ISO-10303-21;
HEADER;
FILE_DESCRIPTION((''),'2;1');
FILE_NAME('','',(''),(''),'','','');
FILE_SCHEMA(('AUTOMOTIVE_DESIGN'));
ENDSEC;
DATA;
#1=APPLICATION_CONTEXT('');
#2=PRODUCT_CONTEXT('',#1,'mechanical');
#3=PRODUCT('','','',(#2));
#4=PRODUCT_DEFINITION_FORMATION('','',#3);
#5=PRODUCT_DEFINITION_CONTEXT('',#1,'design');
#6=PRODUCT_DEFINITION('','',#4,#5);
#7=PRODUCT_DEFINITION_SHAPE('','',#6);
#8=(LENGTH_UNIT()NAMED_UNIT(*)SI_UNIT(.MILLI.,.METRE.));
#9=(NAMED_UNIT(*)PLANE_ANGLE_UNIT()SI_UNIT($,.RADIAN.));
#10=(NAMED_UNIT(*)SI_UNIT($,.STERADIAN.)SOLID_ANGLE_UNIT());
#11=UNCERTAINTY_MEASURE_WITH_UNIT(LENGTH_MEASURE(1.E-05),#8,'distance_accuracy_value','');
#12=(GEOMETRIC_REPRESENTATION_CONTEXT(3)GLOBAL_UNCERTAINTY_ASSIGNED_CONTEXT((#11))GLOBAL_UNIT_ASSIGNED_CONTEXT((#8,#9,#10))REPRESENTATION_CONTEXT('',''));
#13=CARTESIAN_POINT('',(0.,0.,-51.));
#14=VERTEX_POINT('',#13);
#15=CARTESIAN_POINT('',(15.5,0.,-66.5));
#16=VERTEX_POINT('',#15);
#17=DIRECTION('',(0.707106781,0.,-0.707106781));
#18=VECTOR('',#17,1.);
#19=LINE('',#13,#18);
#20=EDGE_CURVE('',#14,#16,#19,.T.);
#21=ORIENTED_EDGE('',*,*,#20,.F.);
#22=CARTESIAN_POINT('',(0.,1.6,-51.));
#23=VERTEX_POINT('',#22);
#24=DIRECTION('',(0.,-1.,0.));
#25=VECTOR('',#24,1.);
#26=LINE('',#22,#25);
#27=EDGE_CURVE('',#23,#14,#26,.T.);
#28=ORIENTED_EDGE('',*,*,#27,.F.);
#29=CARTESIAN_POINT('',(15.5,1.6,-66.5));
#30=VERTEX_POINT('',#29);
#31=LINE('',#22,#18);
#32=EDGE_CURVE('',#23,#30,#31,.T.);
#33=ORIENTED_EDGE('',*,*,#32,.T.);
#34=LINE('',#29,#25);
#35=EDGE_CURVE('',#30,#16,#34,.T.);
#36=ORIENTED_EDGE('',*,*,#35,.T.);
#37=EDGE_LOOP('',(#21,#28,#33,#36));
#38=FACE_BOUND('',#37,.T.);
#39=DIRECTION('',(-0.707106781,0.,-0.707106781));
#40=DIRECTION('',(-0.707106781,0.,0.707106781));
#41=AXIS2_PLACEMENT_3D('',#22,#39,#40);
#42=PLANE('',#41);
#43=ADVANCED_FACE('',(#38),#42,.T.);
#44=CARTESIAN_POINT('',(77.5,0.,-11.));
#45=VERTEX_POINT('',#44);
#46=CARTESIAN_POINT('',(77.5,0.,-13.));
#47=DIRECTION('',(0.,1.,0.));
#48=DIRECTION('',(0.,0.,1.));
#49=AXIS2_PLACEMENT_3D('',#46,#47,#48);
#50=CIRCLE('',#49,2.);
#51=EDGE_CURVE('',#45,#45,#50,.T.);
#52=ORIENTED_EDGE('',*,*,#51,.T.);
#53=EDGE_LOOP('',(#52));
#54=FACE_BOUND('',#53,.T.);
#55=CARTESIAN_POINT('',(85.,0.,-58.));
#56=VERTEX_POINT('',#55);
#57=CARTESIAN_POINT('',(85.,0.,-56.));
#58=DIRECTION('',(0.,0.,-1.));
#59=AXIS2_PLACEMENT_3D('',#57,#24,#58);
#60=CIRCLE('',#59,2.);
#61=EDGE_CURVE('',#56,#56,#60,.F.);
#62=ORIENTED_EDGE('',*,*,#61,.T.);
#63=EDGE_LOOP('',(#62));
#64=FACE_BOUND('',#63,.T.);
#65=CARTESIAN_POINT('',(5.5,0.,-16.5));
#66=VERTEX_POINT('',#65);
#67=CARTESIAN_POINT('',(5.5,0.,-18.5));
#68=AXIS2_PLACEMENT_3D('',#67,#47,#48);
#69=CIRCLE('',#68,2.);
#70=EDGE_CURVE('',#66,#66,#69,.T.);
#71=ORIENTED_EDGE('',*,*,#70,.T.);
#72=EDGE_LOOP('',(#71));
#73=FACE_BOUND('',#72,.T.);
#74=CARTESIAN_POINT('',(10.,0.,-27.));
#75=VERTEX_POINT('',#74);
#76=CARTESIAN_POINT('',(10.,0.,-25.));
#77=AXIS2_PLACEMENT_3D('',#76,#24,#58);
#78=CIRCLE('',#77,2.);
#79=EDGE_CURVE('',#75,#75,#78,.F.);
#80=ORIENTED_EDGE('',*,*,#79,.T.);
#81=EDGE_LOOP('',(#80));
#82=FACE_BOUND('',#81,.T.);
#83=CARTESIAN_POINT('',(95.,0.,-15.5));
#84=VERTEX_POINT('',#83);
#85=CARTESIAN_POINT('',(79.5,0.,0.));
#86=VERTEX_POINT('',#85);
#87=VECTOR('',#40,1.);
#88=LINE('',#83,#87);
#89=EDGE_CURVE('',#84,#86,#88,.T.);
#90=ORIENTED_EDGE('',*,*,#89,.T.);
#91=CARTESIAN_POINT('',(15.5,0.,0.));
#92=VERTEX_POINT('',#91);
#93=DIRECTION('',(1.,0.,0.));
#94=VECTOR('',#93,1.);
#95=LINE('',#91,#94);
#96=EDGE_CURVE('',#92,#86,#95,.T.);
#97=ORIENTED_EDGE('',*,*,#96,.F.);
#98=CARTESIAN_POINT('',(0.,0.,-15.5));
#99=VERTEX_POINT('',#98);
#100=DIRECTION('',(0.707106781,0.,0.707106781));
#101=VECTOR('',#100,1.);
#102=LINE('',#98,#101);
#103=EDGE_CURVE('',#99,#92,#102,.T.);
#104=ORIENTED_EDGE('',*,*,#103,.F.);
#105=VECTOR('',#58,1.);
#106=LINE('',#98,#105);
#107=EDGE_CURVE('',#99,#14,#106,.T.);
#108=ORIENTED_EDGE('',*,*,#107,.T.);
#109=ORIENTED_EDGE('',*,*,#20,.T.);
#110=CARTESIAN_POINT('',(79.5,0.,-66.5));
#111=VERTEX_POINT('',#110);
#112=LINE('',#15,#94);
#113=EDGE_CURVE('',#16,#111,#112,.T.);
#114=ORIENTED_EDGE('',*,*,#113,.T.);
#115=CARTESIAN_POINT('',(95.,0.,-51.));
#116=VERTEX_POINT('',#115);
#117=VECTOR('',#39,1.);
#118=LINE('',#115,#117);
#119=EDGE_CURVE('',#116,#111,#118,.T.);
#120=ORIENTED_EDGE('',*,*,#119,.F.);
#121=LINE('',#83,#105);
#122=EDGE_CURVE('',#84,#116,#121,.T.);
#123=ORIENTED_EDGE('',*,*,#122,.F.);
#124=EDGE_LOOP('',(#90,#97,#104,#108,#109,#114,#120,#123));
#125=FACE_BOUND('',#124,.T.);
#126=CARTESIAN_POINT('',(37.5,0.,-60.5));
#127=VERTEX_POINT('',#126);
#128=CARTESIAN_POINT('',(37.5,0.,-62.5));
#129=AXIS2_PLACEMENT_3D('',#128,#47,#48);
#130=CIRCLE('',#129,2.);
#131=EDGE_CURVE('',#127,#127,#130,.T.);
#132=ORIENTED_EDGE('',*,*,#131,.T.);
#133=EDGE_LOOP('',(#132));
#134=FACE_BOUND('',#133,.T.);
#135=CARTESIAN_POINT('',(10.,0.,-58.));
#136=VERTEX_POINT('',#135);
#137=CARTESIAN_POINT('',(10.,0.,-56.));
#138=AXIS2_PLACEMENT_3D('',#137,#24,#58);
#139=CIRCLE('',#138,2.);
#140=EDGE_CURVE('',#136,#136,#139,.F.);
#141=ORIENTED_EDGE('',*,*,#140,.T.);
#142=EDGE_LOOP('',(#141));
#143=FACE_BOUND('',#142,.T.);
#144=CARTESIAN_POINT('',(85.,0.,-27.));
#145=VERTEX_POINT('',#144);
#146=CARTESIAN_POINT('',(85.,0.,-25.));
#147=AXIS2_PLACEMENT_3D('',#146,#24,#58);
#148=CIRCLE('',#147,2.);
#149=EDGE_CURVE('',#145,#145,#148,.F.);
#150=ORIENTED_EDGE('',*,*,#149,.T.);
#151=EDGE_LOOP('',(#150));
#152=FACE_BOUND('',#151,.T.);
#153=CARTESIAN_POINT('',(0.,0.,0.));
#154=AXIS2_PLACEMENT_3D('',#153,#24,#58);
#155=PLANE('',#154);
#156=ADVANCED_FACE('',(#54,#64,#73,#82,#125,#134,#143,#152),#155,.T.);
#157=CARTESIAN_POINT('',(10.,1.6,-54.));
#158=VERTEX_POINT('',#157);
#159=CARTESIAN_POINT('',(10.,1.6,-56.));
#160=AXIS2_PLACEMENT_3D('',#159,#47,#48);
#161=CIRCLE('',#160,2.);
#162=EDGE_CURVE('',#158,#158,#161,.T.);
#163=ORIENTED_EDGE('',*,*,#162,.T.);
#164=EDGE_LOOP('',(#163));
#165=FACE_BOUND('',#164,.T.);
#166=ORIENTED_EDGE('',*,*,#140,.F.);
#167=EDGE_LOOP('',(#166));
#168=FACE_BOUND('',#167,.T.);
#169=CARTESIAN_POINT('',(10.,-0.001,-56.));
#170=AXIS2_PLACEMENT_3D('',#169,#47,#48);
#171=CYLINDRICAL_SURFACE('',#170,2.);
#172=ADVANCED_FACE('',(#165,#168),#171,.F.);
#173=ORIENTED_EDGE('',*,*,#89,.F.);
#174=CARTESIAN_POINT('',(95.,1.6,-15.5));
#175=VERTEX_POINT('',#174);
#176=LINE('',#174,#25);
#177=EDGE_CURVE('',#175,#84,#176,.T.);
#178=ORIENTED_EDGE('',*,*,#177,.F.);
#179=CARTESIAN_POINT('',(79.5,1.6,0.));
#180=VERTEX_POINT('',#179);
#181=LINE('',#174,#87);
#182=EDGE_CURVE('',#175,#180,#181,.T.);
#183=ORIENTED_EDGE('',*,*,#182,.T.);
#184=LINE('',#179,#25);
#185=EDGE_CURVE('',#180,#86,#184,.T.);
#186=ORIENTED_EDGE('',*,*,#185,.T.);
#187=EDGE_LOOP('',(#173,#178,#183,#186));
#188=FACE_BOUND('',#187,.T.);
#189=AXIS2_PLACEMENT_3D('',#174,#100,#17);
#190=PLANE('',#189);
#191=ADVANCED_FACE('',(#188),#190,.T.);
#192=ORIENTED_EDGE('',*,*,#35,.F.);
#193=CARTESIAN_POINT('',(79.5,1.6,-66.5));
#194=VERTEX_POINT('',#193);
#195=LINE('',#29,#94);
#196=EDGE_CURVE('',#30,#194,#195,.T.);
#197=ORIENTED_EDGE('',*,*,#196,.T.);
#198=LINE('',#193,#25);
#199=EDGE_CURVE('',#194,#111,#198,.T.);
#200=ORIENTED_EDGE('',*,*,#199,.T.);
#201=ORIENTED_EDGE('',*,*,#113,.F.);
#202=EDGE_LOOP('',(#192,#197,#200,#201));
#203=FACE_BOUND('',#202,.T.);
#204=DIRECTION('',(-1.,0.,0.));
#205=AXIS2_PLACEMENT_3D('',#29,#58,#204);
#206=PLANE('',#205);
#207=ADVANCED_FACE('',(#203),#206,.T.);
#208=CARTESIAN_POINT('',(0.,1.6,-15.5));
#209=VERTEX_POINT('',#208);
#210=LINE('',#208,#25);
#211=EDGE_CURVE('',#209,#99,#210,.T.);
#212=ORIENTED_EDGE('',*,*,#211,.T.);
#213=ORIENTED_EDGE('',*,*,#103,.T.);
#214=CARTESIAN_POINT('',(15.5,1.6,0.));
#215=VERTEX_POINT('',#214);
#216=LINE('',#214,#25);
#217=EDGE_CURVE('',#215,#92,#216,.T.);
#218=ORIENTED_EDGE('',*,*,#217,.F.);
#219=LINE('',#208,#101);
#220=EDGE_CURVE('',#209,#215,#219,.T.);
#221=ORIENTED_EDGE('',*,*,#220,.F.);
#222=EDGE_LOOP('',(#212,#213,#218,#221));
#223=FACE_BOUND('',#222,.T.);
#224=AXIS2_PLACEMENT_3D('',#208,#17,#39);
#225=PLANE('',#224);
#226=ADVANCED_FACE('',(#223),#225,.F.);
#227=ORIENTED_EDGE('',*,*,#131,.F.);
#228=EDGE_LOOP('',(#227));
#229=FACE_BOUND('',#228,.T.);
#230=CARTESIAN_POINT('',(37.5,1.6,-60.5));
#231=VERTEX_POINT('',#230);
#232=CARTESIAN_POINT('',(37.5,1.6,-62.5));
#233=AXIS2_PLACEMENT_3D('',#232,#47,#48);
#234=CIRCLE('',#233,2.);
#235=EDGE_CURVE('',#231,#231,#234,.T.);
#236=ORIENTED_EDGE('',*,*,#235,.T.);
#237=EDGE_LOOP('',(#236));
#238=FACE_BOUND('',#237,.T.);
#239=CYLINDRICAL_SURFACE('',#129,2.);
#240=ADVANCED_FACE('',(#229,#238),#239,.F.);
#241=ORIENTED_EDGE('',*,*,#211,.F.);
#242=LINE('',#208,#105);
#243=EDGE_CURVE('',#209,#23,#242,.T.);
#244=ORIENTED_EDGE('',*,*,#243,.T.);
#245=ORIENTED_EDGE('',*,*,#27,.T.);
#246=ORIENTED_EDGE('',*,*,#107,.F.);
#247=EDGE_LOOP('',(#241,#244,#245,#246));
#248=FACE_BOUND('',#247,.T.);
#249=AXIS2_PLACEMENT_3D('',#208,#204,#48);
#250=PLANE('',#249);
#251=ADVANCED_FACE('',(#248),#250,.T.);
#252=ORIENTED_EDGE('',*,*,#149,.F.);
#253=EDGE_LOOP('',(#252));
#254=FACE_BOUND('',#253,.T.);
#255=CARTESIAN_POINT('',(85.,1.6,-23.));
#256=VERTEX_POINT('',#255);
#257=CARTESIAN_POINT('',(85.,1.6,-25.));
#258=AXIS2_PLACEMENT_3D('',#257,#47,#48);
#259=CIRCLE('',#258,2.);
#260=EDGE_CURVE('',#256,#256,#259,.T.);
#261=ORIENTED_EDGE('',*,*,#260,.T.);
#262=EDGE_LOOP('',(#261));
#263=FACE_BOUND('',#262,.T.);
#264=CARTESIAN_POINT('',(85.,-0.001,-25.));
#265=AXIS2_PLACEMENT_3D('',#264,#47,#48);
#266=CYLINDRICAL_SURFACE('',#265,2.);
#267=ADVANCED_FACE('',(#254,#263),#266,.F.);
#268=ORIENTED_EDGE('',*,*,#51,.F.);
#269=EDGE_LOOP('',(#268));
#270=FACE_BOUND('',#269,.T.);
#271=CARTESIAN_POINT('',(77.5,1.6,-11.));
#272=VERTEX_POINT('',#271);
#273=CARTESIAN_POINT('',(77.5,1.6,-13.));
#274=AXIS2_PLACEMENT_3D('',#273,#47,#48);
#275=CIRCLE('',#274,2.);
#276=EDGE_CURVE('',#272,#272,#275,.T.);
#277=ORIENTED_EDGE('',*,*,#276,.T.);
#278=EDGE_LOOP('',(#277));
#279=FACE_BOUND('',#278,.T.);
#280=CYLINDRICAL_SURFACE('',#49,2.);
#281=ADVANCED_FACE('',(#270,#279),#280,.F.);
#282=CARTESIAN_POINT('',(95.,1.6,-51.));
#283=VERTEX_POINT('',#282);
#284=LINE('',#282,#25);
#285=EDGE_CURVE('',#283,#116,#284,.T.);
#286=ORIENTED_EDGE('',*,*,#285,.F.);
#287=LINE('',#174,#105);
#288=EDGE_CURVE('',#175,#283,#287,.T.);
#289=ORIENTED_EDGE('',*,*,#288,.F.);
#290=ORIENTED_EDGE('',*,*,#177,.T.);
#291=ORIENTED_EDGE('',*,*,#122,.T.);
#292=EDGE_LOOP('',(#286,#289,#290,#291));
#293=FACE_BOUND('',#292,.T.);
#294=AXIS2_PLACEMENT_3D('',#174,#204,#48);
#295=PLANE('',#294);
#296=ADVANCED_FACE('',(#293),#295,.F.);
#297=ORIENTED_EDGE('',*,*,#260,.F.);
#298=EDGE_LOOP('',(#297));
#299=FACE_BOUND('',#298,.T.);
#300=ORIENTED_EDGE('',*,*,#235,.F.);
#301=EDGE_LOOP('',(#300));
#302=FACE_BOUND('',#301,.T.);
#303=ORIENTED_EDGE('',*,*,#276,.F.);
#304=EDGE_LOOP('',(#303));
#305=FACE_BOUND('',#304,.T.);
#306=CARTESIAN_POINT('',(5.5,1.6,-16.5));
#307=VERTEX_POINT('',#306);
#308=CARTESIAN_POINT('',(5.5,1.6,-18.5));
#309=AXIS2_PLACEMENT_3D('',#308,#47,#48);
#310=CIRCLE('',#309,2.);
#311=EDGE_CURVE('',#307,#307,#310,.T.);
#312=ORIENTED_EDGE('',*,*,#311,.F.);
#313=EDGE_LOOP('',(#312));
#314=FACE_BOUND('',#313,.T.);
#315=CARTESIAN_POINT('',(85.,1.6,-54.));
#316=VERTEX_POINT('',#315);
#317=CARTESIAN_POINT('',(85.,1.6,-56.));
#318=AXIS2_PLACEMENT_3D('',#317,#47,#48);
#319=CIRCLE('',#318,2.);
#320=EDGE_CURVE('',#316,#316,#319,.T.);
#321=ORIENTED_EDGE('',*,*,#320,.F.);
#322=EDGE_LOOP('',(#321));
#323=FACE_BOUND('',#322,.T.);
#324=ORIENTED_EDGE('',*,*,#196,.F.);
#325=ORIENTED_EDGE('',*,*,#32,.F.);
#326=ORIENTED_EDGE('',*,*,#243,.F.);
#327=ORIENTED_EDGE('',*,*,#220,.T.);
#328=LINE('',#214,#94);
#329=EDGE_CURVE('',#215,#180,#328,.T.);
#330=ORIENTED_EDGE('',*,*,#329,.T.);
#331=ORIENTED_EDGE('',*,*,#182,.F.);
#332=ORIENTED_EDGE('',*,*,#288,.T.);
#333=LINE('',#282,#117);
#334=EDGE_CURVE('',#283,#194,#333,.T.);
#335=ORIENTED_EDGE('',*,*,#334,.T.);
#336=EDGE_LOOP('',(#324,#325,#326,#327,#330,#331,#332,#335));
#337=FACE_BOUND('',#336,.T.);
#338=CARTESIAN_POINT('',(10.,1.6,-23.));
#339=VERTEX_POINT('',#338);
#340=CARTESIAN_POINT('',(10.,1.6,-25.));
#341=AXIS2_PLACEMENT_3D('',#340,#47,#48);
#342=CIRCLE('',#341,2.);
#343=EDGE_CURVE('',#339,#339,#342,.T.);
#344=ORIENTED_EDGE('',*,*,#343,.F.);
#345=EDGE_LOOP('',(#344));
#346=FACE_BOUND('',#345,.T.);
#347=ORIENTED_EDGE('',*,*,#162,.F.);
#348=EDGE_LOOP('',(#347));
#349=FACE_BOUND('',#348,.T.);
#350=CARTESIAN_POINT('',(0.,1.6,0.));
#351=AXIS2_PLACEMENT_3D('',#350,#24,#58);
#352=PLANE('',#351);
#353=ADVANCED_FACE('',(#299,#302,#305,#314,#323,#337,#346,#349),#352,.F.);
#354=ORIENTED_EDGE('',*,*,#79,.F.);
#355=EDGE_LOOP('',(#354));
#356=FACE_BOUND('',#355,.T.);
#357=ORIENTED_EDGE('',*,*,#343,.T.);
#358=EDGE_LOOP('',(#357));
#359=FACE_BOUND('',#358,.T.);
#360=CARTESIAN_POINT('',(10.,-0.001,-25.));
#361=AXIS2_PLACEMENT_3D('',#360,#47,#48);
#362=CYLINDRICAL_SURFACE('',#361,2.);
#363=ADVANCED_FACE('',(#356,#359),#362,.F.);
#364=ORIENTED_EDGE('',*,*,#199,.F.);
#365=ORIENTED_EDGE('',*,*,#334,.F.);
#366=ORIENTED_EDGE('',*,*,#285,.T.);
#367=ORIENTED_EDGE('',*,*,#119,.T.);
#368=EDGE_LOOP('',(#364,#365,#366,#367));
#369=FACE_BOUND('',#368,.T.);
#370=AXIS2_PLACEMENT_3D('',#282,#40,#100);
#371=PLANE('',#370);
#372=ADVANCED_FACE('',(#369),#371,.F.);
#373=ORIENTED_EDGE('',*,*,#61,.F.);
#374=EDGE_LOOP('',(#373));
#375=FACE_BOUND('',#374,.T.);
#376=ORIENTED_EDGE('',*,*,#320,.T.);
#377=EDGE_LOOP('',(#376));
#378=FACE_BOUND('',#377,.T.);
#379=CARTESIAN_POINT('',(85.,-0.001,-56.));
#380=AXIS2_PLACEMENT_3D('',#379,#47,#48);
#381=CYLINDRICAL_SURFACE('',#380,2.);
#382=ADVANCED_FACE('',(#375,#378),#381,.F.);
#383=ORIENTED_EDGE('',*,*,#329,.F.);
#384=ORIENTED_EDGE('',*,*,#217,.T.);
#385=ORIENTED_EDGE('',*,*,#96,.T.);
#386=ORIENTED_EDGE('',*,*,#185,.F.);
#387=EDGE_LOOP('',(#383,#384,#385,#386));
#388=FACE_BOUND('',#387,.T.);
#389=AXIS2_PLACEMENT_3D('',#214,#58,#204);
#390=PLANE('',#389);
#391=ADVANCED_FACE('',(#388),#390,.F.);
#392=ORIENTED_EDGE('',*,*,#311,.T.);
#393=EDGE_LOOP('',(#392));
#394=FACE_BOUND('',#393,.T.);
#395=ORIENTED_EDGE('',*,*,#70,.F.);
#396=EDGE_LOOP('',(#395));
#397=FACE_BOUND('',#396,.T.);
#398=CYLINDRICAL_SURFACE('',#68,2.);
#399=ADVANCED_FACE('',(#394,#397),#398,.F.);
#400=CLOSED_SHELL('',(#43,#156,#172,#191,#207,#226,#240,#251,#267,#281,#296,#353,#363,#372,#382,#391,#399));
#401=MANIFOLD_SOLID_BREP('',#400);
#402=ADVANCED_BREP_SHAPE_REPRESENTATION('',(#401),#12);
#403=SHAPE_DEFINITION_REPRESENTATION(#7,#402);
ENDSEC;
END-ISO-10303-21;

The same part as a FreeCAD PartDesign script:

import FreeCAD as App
import Part
import Sketcher
from FreeCAD import Vector
Q = App.Units.Quantity


def add_polygon(sketch, points):
    """Adds a closed chain of lines whose ends are joined by coincident constraints."""
    first, n = sketch.GeometryCount, len(points)
    for a, b in zip(points, points[1:] + points[:1]):
        sketch.addGeometry(Part.LineSegment(App.Vector(*a, 0), App.Vector(*b, 0)), False)
    for i in range(n):
        sketch.addConstraint(Sketcher.Constraint("Coincident", first + i, 2, first + (i + 1) % n, 1))

doc = App.newDocument("Part")
body = doc.addObject("PartDesign::Body", "Body")

sketch1 = body.newObject("Sketcher::SketchObject", "Sketch")
sketch1.AttachmentSupport = (doc.getObject("XZ_Plane"), [""])
sketch1.MapMode = "FlatFace"
add_polygon(sketch1, [(0, -15.5), (15.5, 0), (79.5, 0), (95, -15.5), (95, -51), (79.5, -66.5), (15.5, -66.5), (0, -51)])
sketch1.addConstraint([
    Sketcher.Constraint("Horizontal", 1),
    Sketcher.Constraint("Vertical", 3),
    Sketcher.Constraint("Horizontal", 5),
    Sketcher.Constraint("Vertical", 7),
    Sketcher.Constraint("PointOnObject", 0, 2, -1),
    Sketcher.Constraint("PointOnObject", 6, 2, -2),
    Sketcher.Constraint("Perpendicular", 0, 2),
    Sketcher.Constraint("Perpendicular", 2, 4),
    Sketcher.Constraint("Perpendicular", 4, 6),
    Sketcher.Constraint("Horizontal", 3, 2, 6, 2),
    Sketcher.Constraint("Horizontal", 2, 2, 7, 2),
    Sketcher.Constraint("Vertical", 1, 2, 4, 2),
    Sketcher.Constraint("Vertical", 0, 2, 5, 2),
    Sketcher.Constraint("DistanceX", 1, 1, 1, 2, Q("64 mm")),
    Sketcher.Constraint("DistanceY", 3, 2, 3, 1, Q("35.5 mm")),
    Sketcher.Constraint("DistanceX", -1, 1, 2, 2, Q("95 mm")),
])
pad1 = body.newObject("PartDesign::Pad", "Pad")
pad1.Profile = sketch1
pad1.Length = 1.6
pad1.Reversed = True

sketch2 = body.newObject("Sketcher::SketchObject", "Sketch001")
sketch2.AttachmentSupport = (doc.getObject("XZ_Plane"), [""])
sketch2.MapMode = "FlatFace"
sketch2.AttachmentOffset = App.Placement(Vector(0, 0, -1.6), App.Rotation())
sketch2.addGeometry([
    Part.Circle(Vector(5.5, -18.5, 0), Vector(0, 0, 1), 2),
    Part.Circle(Vector(77.5, -13, 0), Vector(0, 0, 1), 2),
    Part.Circle(Vector(37.5, -62.5, 0), Vector(0, 0, 1), 2),
], False)
sketch2.addConstraint([
    Sketcher.Constraint("Equal", 0, 1),
    Sketcher.Constraint("Equal", 1, 2),
    Sketcher.Constraint("Diameter", 0, Q("4 mm")),
    Sketcher.Constraint("DistanceY", 1, 3, -1, 1, Q("13 mm")),
    Sketcher.Constraint("DistanceX", 0, 3, 1, 3, Q("72 mm")),
    Sketcher.Constraint("DistanceX", 0, 3, 2, 3, Q("32 mm")),
    Sketcher.Constraint("DistanceY", 2, 3, 0, 3, Q("44 mm")),
    Sketcher.Constraint("DistanceX", -1, 1, 0, 3, Q("5.5 mm")),
    Sketcher.Constraint("DistanceY", 0, 3, -1, 1, Q("18.5 mm")),
])
pocket1 = body.newObject("PartDesign::Pocket", "Pocket")
pocket1.Profile = sketch2
pocket1.Type = "ThroughAll"
pocket1.Reversed = True

sketch3 = body.newObject("Sketcher::SketchObject", "Sketch002")
sketch3.AttachmentSupport = (doc.getObject("XZ_Plane"), [""])
sketch3.MapMode = "FlatFace"
sketch3.AttachmentOffset = App.Placement(Vector(0, 0, -1.6), App.Rotation())
sketch3.addGeometry(Part.Circle(Vector(10, -56, 0), Vector(0, 0, 1), 2), False)
sketch3.addConstraint([
    Sketcher.Constraint("Diameter", 0, Q("4 mm")),
    Sketcher.Constraint("DistanceX", -1, 1, 0, 3, Q("10 mm")),
    Sketcher.Constraint("DistanceY", 0, 3, -1, 1, Q("56 mm")),
])
pocket2 = body.newObject("PartDesign::Pocket", "Pocket001")
pocket2.Profile = sketch3
pocket2.Type = "UpToFirst"
pocket2.Reversed = True

sketch4 = body.newObject("Sketcher::SketchObject", "Sketch003")
sketch4.AttachmentSupport = (doc.getObject("XZ_Plane"), [""])
sketch4.MapMode = "FlatFace"
sketch4.AttachmentOffset = App.Placement(Vector(0, 0, -1.6), App.Rotation())
sketch4.addGeometry(Part.Circle(Vector(85, -56, 0), Vector(0, 0, 1), 2), False)
sketch4.addConstraint([
    Sketcher.Constraint("Diameter", 0, Q("4 mm")),
    Sketcher.Constraint("DistanceX", -1, 1, 0, 3, Q("85 mm")),
    Sketcher.Constraint("DistanceY", 0, 3, -1, 1, Q("56 mm")),
])
pocket3 = body.newObject("PartDesign::Pocket", "Pocket002")
pocket3.Profile = sketch4
pocket3.Type = "UpToFirst"
pocket3.Reversed = True

sketch5 = body.newObject("Sketcher::SketchObject", "Sketch004")
sketch5.AttachmentSupport = (doc.getObject("XZ_Plane"), [""])
sketch5.MapMode = "FlatFace"
sketch5.AttachmentOffset = App.Placement(Vector(0, 0, -1.6), App.Rotation())
sketch5.addGeometry(Part.Circle(Vector(85, -25, 0), Vector(0, 0, 1), 2), False)
sketch5.addConstraint([
    Sketcher.Constraint("Diameter", 0, Q("4 mm")),
    Sketcher.Constraint("DistanceX", -1, 1, 0, 3, Q("85 mm")),
    Sketcher.Constraint("DistanceY", 0, 3, -1, 1, Q("25 mm")),
])
pocket4 = body.newObject("PartDesign::Pocket", "Pocket003")
pocket4.Profile = sketch5
pocket4.Type = "UpToFirst"
pocket4.Reversed = True

sketch6 = body.newObject("Sketcher::SketchObject", "Sketch005")
sketch6.AttachmentSupport = (doc.getObject("XZ_Plane"), [""])
sketch6.MapMode = "FlatFace"
sketch6.AttachmentOffset = App.Placement(Vector(0, 0, -1.6), App.Rotation())
sketch6.addGeometry(Part.Circle(Vector(10, -25, 0), Vector(0, 0, 1), 2), False)
sketch6.addConstraint([
    Sketcher.Constraint("Diameter", 0, Q("4 mm")),
    Sketcher.Constraint("DistanceX", -1, 1, 0, 3, Q("10 mm")),
    Sketcher.Constraint("DistanceY", 0, 3, -1, 1, Q("25 mm")),
])
pocket5 = body.newObject("PartDesign::Pocket", "Pocket004")
pocket5.Profile = sketch6
pocket5.Type = "UpToFirst"
pocket5.Reversed = True

doc.recompute()
